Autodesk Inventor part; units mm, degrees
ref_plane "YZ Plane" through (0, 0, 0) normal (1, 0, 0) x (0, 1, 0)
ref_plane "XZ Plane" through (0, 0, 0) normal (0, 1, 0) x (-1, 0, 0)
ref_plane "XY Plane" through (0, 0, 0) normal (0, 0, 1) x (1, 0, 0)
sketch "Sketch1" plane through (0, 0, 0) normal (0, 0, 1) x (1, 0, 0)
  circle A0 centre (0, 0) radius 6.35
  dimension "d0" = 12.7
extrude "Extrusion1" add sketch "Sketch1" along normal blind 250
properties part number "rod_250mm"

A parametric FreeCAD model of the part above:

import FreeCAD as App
import Part
import Sketcher
from FreeCAD import Vector

doc = App.newDocument("Part")
params = doc.addObject("Spreadsheet::Sheet", "Params")
for row, (alias, value) in enumerate([
    ("sketch1_diameter", "12.7 mm"),
    ("pad1_length", "250 mm"),
], start=1):
    params.set(f"A{row}", alias)
    params.set(f"B{row}", "=" + value)
    params.setAlias(f"B{row}", alias)

body = doc.addObject("PartDesign::Body", "Body")

sketch1 = body.newObject("Sketcher::SketchObject", "Sketch")
sketch1.AttachmentSupport = (doc.getObject("XY_Plane"), [""])
sketch1.MapMode = "FlatFace"
sketch1.addGeometry(Part.Circle(Vector(0, 0, 0), Vector(0, 0, 1), 6), False)
sketch1.addConstraint(Sketcher.Constraint("Coincident", 0, 3, -1, 1))
sketch1.addConstraint(Sketcher.Constraint("Diameter", 0, 12.7))
sketch1.setExpression("Constraints[1]", "Params.sketch1_diameter")
pad1 = body.newObject("PartDesign::Pad", "Pad")
pad1.Profile = sketch1
pad1.setExpression("Length", "Params.pad1_length")

doc.recompute()
